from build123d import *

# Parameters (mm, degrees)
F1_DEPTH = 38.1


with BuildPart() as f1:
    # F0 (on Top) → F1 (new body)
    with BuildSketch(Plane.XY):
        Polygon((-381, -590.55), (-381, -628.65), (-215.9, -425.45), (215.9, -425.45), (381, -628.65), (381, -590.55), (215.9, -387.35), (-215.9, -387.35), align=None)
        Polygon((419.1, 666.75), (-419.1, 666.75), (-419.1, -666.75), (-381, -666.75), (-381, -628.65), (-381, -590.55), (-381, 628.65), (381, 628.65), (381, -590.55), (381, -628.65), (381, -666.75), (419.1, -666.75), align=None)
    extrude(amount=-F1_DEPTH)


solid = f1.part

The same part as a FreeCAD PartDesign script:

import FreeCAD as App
import Part
import Sketcher
from FreeCAD import Vector
Q = App.Units.Quantity


def add_polygon(sketch, points):
    """Adds a closed chain of lines whose ends are joined by coincident constraints."""
    first, n = sketch.GeometryCount, len(points)
    for a, b in zip(points, points[1:] + points[:1]):
        sketch.addGeometry(Part.LineSegment(App.Vector(*a, 0), App.Vector(*b, 0)), False)
    for i in range(n):
        sketch.addConstraint(Sketcher.Constraint("Coincident", first + i, 2, first + (i + 1) % n, 1))

doc = App.newDocument("Part")
params = doc.addObject("Spreadsheet::Sheet", "Params")
for row, (alias, value) in enumerate([
    ("sketch1_width", "17 in"),
    ("sketch1_width2", "33 in"),
    ("sketch1_width3", "30 in"),
    ("sketch1_height", "48 in"),
    ("sketch1_height2", "52.5 in"),
    ("pad1_length", "1.5 in"),
], start=1):
    params.set(f"A{row}", alias)
    params.set(f"B{row}", "=" + value)
    params.setAlias(f"B{row}", alias)

body = doc.addObject("PartDesign::Body", "Body")

sketch1 = doc.addObject("Sketcher::SketchObject", "Sketch")
body.addObject(sketch1)
sketch1.AttachmentSupport = (doc.XY_Plane, [""])
sketch1.MapMode = "FlatFace"
add_polygon(sketch1, [(-381, -629), (-216, -425), (216, -425), (381, -629), (381, -667), (419, -667), (419, 667), (-419, 667), (-419, -667), (-381, -667)])
add_polygon(sketch1, [(381, -591), (216, -387), (-216, -387), (-381, -591), (-381, 629), (381, 629)])
sketch1.addConstraint(Sketcher.Constraint("Horizontal", 1))
sketch1.addConstraint(Sketcher.Constraint("Vertical", 3))
sketch1.addConstraint(Sketcher.Constraint("Horizontal", 4))
sketch1.addConstraint(Sketcher.Constraint("Vertical", 5))
sketch1.addConstraint(Sketcher.Constraint("Horizontal", 6))
sketch1.addConstraint(Sketcher.Constraint("Vertical", 7))
sketch1.addConstraint(Sketcher.Constraint("Horizontal", 8))
sketch1.addConstraint(Sketcher.Constraint("Vertical", 9))
sketch1.addConstraint(Sketcher.Constraint("Horizontal", 11))
sketch1.addConstraint(Sketcher.Constraint("Vertical", 13))
sketch1.addConstraint(Sketcher.Constraint("Horizontal", 14))
sketch1.addConstraint(Sketcher.Constraint("Vertical", 15))
sketch1.addConstraint(Sketcher.Constraint("Symmetric", 4, 2, 6, 2, -1, 1))
sketch1.addConstraint(Sketcher.Constraint("Symmetric", 2, 2, 13, 2, -1, 1))
sketch1.addConstraint(Sketcher.Constraint("Symmetric", 9, 2, 14, 2, -1, 1))
sketch1.addConstraint(Sketcher.Constraint("Symmetric", 3, 2, 8, 2, -2))
sketch1.addConstraint(Sketcher.Constraint("Parallel", 2, 10))
sketch1.addConstraint(Sketcher.Constraint("Parallel", 0, 12))
sketch1.addConstraint(Sketcher.Constraint("Horizontal", 12, 2, 15, 2))
sketch1.addConstraint(Sketcher.Constraint("Vertical", 1, 2, 10, 2))
sketch1.addConstraint(Sketcher.Constraint("Equal", 8, 3))
sketch1.addConstraint(Sketcher.Constraint("Equal", 0, 2))
sketch1.addConstraint(Sketcher.Constraint("DistanceX", 1, 1, 1, 2, Q("17 in")))
sketch1.addConstraint(Sketcher.Constraint("DistanceX", 6, 2, 6, 1, Q("33 in")))
sketch1.addConstraint(Sketcher.Constraint("DistanceX", 14, 1, 14, 2, Q("30 in")))
sketch1.addConstraint(Sketcher.Constraint("DistanceY", 13, 1, 13, 2, Q("48 in")))
sketch1.addConstraint(Sketcher.Constraint("DistanceY", 5, 1, 5, 2, Q("52.5 in")))
sketch1.addConstraint(Sketcher.Constraint("DistanceY", 2, 2, 1, 2, Q("8 in")))
sketch1.setExpression("Constraints[38]", "Params.sketch1_width")
sketch1.setExpression("Constraints[39]", "Params.sketch1_width2")
sketch1.setExpression("Constraints[40]", "Params.sketch1_width3")
sketch1.setExpression("Constraints[41]", "Params.sketch1_height")
sketch1.setExpression("Constraints[42]", "Params.sketch1_height2")
pad1 = doc.addObject("PartDesign::Pad", "Pad")
body.addObject(pad1)
pad1.Profile = sketch1
pad1.setExpression("Length", "Params.pad1_length")
pad1.Reversed = True

doc.recompute()
